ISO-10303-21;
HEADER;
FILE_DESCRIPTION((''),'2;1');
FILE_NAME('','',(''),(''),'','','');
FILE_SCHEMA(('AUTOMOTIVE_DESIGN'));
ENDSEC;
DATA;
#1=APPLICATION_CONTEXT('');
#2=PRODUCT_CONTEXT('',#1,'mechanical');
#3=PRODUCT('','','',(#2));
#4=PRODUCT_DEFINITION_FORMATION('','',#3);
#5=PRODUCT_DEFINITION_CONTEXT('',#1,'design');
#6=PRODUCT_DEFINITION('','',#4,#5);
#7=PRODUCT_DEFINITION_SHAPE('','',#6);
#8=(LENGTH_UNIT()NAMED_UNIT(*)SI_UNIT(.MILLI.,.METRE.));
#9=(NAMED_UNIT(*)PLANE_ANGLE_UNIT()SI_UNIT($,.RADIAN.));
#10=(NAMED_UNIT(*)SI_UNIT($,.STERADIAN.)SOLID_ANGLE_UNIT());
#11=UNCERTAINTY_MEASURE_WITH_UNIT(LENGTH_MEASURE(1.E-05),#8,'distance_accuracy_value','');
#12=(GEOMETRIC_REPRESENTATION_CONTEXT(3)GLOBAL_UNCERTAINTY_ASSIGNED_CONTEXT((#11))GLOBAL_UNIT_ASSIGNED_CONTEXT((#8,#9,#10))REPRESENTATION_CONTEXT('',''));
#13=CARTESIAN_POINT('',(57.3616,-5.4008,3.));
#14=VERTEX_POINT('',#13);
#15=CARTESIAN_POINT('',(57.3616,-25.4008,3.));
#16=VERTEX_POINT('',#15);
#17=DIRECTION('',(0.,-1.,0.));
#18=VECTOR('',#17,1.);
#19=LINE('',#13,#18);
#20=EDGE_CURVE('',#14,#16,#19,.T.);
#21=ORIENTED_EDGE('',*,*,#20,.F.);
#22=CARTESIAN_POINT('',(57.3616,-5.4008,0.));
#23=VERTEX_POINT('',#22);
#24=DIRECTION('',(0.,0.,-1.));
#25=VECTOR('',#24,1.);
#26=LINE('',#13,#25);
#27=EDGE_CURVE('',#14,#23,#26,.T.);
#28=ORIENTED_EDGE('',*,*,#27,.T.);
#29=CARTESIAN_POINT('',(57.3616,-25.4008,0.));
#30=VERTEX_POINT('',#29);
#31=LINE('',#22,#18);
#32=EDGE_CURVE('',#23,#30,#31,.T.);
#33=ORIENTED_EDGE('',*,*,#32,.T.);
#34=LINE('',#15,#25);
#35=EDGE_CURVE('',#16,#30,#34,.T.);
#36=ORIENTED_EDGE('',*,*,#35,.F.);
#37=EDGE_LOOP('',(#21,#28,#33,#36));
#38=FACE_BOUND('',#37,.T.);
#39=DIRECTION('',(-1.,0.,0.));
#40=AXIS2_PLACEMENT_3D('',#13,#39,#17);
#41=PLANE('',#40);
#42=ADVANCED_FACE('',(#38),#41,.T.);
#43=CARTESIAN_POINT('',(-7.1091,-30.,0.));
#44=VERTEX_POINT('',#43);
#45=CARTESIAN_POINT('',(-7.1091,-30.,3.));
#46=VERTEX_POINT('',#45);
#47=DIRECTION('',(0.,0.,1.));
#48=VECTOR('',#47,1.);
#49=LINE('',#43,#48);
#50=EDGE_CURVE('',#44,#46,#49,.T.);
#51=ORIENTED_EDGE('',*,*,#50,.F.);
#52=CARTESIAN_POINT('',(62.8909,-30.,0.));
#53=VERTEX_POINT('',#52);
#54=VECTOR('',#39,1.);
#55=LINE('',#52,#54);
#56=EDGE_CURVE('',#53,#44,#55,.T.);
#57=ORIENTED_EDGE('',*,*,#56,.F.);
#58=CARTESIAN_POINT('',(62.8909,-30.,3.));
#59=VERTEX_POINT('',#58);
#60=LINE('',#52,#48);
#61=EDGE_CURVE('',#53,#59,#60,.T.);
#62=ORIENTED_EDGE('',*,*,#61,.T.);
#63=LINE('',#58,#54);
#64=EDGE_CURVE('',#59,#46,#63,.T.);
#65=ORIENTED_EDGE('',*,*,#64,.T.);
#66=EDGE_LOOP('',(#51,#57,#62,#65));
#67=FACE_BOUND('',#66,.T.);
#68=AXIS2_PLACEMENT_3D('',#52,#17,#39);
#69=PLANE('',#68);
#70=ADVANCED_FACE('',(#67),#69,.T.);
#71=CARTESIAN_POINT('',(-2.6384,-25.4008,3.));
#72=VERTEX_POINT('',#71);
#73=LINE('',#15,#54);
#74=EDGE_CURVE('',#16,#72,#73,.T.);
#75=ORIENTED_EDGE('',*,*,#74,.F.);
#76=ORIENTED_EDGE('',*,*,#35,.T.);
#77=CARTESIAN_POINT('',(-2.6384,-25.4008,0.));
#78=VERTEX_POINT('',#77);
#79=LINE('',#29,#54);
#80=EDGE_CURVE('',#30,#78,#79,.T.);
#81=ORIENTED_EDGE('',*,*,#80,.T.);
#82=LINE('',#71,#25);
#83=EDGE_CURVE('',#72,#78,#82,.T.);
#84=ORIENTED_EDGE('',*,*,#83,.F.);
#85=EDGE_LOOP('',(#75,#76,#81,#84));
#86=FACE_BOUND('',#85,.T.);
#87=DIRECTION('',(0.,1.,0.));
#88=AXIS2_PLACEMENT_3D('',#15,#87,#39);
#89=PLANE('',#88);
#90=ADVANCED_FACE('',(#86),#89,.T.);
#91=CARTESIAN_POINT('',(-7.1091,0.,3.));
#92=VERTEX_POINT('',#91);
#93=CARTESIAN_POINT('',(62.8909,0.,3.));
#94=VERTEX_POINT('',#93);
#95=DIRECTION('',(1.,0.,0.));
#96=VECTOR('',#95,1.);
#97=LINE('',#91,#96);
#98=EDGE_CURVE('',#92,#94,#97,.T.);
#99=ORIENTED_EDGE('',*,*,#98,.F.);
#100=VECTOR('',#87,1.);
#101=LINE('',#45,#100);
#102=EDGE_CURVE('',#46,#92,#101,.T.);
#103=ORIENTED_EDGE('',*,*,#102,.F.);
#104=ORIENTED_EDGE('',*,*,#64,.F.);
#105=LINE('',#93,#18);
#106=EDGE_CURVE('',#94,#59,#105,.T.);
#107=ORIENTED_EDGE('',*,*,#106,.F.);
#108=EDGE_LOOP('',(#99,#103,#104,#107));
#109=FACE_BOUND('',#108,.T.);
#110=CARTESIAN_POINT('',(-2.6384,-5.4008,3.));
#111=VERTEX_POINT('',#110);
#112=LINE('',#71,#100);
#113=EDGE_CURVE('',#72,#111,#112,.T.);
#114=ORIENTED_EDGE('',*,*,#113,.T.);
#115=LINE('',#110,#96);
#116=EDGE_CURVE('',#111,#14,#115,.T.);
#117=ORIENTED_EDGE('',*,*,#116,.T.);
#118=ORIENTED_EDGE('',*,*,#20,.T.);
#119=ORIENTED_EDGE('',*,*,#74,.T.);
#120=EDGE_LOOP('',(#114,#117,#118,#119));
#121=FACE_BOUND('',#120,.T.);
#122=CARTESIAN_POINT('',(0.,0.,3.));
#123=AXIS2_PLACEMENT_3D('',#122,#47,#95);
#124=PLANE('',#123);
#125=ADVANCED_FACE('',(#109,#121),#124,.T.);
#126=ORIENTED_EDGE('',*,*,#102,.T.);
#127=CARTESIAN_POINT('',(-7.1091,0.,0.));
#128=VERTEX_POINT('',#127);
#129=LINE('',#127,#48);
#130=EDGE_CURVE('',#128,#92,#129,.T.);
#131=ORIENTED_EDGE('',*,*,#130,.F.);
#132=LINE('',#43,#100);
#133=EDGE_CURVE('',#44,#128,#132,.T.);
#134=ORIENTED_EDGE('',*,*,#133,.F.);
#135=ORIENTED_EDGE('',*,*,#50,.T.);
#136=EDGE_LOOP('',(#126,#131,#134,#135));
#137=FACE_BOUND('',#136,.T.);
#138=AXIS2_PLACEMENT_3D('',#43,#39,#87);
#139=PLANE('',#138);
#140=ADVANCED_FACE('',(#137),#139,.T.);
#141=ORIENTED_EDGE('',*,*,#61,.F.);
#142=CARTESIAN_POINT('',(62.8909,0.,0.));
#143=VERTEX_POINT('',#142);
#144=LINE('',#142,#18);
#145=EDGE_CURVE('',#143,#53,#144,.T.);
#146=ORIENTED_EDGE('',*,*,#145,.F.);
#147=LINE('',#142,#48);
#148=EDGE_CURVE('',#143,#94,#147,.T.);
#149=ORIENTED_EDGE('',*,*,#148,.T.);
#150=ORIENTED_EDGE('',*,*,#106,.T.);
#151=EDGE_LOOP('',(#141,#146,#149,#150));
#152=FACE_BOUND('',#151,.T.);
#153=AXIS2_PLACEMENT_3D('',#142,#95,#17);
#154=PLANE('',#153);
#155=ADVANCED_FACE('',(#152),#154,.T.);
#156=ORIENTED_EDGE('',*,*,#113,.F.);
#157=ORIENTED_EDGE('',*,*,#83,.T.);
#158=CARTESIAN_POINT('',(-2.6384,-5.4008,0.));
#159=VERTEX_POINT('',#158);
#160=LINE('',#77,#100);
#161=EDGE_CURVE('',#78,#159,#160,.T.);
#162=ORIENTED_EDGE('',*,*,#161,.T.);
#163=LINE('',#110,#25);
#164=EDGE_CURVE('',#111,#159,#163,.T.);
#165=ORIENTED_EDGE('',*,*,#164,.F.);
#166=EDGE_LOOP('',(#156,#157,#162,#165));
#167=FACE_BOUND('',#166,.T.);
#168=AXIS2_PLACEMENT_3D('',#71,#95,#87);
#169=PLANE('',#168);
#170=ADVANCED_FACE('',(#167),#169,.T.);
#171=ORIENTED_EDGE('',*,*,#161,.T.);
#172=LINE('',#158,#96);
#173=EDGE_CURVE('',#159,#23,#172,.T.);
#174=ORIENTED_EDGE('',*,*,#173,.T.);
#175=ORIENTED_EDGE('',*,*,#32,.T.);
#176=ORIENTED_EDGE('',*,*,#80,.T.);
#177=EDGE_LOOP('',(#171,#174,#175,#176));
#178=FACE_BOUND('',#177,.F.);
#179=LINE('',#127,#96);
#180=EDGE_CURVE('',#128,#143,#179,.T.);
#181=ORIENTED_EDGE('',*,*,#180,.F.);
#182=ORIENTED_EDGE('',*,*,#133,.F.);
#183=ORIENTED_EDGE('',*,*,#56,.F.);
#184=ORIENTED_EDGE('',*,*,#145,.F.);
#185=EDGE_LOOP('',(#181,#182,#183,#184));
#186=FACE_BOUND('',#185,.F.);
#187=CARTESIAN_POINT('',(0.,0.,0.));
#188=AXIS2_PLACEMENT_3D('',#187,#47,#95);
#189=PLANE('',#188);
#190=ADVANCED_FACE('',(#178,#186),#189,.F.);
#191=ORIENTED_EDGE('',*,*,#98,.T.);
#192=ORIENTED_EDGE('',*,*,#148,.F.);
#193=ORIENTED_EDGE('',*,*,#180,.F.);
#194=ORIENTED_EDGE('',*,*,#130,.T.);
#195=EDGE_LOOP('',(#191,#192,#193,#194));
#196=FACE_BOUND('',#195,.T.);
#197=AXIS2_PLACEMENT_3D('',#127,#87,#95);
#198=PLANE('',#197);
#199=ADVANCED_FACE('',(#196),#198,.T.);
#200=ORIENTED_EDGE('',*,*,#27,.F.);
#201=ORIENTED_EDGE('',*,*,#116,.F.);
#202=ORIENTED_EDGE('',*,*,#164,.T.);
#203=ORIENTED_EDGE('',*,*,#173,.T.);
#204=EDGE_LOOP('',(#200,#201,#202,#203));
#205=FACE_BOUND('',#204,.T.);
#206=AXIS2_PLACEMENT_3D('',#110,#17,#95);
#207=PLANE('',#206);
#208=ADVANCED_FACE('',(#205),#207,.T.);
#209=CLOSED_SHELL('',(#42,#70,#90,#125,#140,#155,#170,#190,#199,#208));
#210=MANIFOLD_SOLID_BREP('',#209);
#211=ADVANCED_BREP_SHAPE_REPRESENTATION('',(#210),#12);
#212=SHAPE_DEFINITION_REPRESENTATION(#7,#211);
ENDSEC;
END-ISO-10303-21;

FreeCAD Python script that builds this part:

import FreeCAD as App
import Part
import Sketcher

doc = App.newDocument("Part")
body = doc.addObject("PartDesign::Body", "Body")

# Sketch on XY plane
sketch1 = doc.addObject("Sketcher::SketchObject", "Sketch")
body.addObject(sketch1)
sketch1.AttachmentSupport = (doc.XY_Plane, [""])
sketch1.MapMode = "FlatFace"
sketch1.addGeometry([
    Part.LineSegment(App.Vector(62.8909, 0, 0), App.Vector(-7.1091, 0, 0)),
    Part.LineSegment(App.Vector(-7.1091, 0, 0), App.Vector(-7.1091, -30, 0)),
    Part.LineSegment(App.Vector(-7.1091, -30, 0), App.Vector(62.8909, -30, 0)),
    Part.LineSegment(App.Vector(62.8909, -30, 0), App.Vector(62.8909, 0, 0)),
], False)
sketch1.addConstraint([
    Sketcher.Constraint("Coincident", 0, 2, 1, 1),
    Sketcher.Constraint("Coincident", 1, 2, 2, 1),
    Sketcher.Constraint("Coincident", 2, 2, 3, 1),
    Sketcher.Constraint("Coincident", 3, 2, 0, 1),
    Sketcher.Constraint("Horizontal", 0),
    Sketcher.Constraint("Vertical", 1),
    Sketcher.Constraint("Horizontal", 2),
    Sketcher.Constraint("Vertical", 3),
    Sketcher.Constraint("PointOnObject", 0, 2, -1),
    Sketcher.Constraint("DistanceX", 0, 2, 0, 1, 70.0),
    Sketcher.Constraint("DistanceY", 1, 2, 1, 1, 30.0),
    Sketcher.Constraint("DistanceX", 0, 2, -1, 1, 7.109),
])
pad1 = doc.addObject("PartDesign::Pad", "Pad")
body.addObject(pad1)
pad1.Profile = sketch1
pad1.Length = 3

# Sketch on XY plane
sketch2 = doc.addObject("Sketcher::SketchObject", "Sketch001")
body.addObject(sketch2)
sketch2.AttachmentSupport = (doc.XY_Plane, [""])
sketch2.MapMode = "FlatFace"
sketch2.AttachmentOffset = App.Placement(App.Vector(0, 0, 3), App.Rotation())
sketch2.addGeometry([
    Part.LineSegment(App.Vector(-2.6384, -25.4008, 0), App.Vector(57.3616, -25.4008, 0)),
    Part.LineSegment(App.Vector(57.3616, -25.4008, 0), App.Vector(57.3616, -5.4008, 0)),
    Part.LineSegment(App.Vector(57.3616, -5.4008, 0), App.Vector(-2.6384, -5.4008, 0)),
    Part.LineSegment(App.Vector(-2.6384, -5.4008, 0), App.Vector(-2.6384, -25.4008, 0)),
], False)
sketch2.addConstraint([
    Sketcher.Constraint("Coincident", 0, 2, 1, 1),
    Sketcher.Constraint("Coincident", 1, 2, 2, 1),
    Sketcher.Constraint("Coincident", 2, 2, 3, 1),
    Sketcher.Constraint("Coincident", 3, 2, 0, 1),
    Sketcher.Constraint("Horizontal", 0),
    Sketcher.Constraint("Vertical", 1),
    Sketcher.Constraint("Horizontal", 2),
    Sketcher.Constraint("Vertical", 3),
    Sketcher.Constraint("DistanceX", 0, 1, 0, 2, 60.0),
    Sketcher.Constraint("DistanceY", 1, 1, 1, 2, 20.0),
    Sketcher.Constraint("DistanceX", -1, 1, 0, 2, 57.3616),
    Sketcher.Constraint("DistanceY", 0, 2, -1, 1, 25.4008),
])
pocket1 = doc.addObject("PartDesign::Pocket", "Pocket")
body.addObject(pocket1)
pocket1.Profile = sketch2
pocket1.Length = 3

doc.recompute()
